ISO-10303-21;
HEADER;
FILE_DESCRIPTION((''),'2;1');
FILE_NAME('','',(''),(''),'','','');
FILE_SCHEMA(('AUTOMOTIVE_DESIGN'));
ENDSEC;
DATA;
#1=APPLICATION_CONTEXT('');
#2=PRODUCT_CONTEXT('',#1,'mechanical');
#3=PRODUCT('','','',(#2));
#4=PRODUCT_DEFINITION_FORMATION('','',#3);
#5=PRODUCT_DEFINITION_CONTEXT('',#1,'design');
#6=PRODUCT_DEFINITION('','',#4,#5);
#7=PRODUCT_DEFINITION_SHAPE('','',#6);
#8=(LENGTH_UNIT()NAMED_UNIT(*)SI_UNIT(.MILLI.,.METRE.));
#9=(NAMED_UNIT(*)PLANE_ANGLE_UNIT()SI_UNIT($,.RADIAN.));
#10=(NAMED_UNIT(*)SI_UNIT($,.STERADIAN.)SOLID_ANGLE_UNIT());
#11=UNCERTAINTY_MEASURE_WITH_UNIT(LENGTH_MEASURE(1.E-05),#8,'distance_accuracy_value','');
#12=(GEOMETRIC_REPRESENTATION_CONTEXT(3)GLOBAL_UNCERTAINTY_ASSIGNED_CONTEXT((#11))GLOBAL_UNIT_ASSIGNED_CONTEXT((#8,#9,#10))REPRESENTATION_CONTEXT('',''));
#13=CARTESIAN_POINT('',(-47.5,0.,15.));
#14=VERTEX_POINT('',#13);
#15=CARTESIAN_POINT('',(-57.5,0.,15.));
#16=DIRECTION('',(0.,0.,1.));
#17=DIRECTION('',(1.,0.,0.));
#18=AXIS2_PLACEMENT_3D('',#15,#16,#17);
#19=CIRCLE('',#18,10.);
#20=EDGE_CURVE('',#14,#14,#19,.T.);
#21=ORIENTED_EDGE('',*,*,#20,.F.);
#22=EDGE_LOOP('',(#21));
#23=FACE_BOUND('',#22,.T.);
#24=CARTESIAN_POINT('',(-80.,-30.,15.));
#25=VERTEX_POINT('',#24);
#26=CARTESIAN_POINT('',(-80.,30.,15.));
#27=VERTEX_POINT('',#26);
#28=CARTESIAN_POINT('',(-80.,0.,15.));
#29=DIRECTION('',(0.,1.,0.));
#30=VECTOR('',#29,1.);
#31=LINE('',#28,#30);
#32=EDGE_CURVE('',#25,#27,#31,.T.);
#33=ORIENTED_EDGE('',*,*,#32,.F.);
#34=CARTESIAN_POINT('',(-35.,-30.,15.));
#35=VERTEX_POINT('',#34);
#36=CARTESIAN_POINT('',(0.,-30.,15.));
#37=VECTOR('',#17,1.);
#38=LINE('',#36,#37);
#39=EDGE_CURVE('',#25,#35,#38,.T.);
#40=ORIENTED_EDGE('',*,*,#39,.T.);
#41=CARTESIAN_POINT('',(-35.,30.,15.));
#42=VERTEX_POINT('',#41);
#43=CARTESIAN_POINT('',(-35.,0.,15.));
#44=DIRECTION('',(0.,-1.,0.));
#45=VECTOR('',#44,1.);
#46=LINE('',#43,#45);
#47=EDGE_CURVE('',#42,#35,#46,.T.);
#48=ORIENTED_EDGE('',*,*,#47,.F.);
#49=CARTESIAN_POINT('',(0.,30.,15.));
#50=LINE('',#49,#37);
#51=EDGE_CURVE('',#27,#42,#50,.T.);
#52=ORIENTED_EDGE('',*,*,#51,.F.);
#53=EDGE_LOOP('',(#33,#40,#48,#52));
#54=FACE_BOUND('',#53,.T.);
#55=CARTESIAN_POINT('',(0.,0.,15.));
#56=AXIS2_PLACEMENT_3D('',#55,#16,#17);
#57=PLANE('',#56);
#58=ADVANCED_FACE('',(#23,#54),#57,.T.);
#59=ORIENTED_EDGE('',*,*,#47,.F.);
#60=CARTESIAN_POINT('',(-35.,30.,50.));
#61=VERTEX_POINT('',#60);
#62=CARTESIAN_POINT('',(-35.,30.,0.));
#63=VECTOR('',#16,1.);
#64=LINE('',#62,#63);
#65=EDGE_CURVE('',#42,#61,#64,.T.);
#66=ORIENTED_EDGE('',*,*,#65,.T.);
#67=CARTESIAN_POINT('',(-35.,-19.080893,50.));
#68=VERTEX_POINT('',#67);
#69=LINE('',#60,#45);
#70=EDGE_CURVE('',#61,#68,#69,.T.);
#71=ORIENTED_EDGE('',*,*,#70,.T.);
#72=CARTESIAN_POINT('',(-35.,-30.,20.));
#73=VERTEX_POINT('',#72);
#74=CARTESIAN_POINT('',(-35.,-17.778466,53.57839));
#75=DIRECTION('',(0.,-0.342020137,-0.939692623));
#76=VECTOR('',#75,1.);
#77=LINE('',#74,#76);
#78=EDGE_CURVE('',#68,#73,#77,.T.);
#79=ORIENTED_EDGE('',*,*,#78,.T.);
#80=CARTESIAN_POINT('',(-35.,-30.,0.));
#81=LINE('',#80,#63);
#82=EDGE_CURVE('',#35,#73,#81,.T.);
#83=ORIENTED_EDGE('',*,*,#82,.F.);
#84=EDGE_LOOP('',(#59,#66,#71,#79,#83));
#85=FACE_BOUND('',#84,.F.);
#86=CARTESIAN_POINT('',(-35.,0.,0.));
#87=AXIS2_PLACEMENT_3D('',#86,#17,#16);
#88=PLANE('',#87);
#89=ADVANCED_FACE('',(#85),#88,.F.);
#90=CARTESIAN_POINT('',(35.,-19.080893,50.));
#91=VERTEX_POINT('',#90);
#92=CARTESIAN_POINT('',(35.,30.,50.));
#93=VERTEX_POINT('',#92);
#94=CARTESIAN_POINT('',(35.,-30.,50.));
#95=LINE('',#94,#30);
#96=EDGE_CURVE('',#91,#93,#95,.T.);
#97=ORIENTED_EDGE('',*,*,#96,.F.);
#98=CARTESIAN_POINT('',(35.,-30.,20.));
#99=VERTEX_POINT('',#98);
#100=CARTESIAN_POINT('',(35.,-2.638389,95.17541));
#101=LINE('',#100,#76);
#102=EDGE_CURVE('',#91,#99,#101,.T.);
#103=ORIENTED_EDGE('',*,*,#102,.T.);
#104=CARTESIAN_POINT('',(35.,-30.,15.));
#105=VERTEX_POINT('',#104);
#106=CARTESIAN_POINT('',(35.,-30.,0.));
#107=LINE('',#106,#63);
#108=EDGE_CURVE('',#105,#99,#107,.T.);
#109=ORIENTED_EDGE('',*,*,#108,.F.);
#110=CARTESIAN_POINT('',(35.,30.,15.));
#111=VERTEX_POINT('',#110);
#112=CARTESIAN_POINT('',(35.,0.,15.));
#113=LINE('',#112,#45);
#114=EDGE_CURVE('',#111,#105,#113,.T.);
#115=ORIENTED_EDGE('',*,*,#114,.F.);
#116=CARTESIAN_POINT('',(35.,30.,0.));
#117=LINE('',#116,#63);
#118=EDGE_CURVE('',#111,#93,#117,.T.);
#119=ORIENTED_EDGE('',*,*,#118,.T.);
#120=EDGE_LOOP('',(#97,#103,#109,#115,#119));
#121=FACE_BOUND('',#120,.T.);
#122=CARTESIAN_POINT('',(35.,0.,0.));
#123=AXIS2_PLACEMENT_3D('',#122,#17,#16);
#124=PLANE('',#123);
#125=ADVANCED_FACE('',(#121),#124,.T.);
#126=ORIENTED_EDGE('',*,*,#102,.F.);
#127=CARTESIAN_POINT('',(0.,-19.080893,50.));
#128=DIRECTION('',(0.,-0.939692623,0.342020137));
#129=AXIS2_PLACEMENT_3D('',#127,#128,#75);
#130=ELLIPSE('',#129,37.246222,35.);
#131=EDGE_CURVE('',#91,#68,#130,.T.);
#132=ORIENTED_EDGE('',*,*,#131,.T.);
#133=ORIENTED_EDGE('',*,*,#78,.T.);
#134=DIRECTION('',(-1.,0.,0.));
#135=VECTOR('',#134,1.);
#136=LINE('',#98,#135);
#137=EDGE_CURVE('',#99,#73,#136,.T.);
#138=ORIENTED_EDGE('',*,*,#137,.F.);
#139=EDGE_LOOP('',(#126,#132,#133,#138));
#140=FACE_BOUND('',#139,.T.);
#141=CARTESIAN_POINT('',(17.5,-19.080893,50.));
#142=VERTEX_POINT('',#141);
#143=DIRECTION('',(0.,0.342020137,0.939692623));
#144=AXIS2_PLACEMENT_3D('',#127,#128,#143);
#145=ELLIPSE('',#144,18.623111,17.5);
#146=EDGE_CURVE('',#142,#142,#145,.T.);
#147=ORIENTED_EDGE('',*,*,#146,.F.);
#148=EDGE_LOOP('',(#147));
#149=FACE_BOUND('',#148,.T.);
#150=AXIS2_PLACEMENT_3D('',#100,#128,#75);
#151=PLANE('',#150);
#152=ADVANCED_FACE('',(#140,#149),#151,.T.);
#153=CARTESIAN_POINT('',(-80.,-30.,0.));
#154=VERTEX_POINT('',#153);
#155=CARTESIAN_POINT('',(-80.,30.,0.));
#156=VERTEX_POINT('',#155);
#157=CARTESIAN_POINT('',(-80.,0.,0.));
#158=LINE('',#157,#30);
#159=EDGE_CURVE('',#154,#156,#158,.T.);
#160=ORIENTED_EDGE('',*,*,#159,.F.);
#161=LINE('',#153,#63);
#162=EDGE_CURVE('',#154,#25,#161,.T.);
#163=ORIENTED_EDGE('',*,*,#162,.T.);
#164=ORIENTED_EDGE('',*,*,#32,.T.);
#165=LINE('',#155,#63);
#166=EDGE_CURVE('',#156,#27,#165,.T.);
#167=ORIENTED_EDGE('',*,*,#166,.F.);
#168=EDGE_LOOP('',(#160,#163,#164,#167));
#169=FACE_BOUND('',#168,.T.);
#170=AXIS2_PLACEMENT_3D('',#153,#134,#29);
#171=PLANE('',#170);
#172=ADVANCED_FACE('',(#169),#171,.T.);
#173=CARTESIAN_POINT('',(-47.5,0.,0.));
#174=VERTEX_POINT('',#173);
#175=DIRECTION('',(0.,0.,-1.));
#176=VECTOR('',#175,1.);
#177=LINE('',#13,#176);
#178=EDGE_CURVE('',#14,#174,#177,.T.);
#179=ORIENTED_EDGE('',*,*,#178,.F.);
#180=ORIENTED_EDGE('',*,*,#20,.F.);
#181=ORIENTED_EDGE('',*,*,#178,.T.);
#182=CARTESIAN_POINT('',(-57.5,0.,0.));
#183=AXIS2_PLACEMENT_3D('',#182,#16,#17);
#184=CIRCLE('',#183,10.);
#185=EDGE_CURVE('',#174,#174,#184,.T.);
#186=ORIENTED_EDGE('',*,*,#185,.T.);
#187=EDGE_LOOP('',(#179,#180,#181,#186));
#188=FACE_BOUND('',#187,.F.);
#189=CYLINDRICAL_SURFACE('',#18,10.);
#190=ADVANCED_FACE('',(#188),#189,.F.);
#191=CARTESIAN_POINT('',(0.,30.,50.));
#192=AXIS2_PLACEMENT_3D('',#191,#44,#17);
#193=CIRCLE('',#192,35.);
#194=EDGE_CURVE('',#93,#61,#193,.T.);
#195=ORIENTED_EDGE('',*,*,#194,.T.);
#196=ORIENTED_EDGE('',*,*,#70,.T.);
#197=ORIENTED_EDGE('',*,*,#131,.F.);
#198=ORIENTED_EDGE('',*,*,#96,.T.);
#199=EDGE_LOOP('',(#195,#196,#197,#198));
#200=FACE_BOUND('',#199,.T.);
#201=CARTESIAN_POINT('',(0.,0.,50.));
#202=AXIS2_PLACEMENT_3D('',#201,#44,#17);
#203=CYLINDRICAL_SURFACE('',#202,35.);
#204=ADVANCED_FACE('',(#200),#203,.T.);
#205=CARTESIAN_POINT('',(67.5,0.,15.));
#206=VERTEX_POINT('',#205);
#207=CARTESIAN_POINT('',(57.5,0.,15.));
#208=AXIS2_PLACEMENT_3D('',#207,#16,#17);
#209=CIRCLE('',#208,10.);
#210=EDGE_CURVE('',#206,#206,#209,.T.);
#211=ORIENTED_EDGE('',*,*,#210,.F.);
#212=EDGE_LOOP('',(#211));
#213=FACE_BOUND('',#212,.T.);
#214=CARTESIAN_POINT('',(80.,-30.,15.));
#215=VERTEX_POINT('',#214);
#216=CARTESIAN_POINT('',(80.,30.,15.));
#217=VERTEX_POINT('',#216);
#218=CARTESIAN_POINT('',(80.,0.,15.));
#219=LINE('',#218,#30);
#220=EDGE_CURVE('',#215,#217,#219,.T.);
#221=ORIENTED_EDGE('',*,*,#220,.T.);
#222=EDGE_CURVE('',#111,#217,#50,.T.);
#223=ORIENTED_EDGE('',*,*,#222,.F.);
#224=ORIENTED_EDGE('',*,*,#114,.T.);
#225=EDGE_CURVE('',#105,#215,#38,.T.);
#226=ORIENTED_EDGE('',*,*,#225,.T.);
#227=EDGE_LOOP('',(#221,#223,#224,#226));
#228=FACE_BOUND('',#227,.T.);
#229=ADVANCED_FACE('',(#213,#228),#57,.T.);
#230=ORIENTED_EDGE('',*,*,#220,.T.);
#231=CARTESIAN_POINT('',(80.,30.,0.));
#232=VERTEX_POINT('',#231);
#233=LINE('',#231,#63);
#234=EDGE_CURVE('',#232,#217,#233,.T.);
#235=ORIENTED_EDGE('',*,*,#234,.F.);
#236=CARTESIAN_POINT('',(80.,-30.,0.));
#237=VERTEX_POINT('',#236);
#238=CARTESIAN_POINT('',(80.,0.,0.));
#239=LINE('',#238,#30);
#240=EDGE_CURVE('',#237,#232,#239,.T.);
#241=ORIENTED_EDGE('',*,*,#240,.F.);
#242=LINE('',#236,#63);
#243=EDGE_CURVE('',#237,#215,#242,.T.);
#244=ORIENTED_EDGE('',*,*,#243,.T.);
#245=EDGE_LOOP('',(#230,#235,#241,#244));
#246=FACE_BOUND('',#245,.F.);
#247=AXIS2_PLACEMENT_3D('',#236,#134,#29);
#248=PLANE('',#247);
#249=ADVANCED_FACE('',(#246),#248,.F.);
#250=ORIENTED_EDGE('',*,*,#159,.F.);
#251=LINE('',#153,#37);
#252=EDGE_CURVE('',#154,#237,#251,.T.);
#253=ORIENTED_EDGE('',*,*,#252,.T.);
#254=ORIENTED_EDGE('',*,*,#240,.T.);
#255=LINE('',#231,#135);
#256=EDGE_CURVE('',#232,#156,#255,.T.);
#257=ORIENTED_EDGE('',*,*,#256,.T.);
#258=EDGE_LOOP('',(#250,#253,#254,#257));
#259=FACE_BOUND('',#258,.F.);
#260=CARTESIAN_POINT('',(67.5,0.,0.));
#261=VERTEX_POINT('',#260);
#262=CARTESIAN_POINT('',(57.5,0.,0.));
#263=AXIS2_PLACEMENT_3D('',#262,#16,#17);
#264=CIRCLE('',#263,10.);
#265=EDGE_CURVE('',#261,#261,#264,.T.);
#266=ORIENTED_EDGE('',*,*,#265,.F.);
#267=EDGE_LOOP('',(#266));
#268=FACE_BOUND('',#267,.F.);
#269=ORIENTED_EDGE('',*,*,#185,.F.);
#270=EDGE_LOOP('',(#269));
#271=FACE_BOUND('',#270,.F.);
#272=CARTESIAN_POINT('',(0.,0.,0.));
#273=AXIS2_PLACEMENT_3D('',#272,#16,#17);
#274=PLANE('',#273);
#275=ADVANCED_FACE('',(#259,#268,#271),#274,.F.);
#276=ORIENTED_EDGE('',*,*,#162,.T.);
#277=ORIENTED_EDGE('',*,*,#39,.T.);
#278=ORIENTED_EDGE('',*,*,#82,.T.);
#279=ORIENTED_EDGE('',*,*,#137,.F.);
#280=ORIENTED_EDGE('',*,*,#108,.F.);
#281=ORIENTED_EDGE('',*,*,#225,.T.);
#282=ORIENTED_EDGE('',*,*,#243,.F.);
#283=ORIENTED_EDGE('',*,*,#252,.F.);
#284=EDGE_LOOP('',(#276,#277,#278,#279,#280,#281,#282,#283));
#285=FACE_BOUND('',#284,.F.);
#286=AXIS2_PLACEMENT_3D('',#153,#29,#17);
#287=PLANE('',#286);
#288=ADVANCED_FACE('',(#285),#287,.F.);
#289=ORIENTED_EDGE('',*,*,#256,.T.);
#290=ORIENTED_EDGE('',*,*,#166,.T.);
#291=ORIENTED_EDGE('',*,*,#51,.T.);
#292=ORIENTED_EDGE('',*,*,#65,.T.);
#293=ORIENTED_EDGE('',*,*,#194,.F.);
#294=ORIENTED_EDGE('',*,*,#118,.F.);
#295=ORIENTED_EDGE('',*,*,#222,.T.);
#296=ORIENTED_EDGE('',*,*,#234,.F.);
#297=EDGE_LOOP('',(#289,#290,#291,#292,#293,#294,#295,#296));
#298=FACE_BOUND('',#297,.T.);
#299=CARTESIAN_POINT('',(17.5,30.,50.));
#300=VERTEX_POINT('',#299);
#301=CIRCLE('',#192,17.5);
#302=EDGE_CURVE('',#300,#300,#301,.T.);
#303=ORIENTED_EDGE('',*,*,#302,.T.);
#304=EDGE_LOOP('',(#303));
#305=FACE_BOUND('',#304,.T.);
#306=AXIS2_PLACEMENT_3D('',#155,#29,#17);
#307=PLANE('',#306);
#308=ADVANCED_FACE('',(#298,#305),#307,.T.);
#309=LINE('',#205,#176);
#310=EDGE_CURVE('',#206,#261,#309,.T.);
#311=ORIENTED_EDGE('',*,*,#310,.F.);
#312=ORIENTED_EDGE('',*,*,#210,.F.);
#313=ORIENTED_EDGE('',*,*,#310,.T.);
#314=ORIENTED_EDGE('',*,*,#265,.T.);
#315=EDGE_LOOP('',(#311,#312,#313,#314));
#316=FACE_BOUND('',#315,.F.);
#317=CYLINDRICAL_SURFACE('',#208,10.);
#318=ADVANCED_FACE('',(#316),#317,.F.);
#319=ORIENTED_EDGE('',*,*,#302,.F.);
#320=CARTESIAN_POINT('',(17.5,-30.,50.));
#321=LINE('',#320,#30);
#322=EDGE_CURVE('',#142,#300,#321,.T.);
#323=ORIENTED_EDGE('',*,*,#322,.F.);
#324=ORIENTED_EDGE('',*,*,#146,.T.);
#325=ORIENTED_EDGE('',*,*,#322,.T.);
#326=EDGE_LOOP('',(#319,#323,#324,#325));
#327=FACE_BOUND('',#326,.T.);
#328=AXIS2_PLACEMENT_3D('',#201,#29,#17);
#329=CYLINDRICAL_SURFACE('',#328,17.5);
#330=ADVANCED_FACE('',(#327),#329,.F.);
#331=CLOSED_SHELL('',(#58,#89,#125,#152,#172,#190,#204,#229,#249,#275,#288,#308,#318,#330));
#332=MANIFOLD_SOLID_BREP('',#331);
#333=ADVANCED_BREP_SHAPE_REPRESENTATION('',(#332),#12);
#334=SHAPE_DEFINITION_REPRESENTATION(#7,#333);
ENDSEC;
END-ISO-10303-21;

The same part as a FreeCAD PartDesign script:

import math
import FreeCAD as App
import Part
import Sketcher

V = App.Vector
Q = App.Units.Quantity

doc = App.newDocument("Part")
params = doc.addObject("Spreadsheet::Sheet", "Params")
for row, (alias, value) in enumerate([
    ("sketch1_width", "160 mm"),
    ("sketch1_height", "60 mm"),
    ("pad1_length", "15 mm"),
    ("sketch2_diameter", "20 mm"),
    ("sketch3_diameter", "35 mm"),
    ("sketch3_radius", "35 mm"),
    ("sketch3_height", "50 mm"),
    ("pad2_length", "60 mm"),
    ("sketch4_height", "75 mm"),
    ("sketch4_length", "80 mm"),
], start=1):
    params.set(f"A{row}", alias)
    params.set(f"B{row}", "=" + value)
    params.setAlias(f"B{row}", alias)

body = doc.addObject("PartDesign::Body", "Body")

# Sketch on XY plane
sketch1 = body.newObject("Sketcher::SketchObject", "Sketch")
sketch1.AttachmentSupport = (doc.getObject("XY_Plane"), [""])
sketch1.MapMode = "FlatFace"
sketch1.addGeometry(Part.LineSegment(V(-80, 30, 0), V(-80, -30, 0)), False)
sketch1.addGeometry(Part.LineSegment(V(-80, -30, 0), V(80, -30, 0)), False)
sketch1.addGeometry(Part.LineSegment(V(80, -30, 0), V(80, 30, 0)), False)
sketch1.addGeometry(Part.LineSegment(V(80, 30, 0), V(-80, 30, 0)), False)
sketch1.addConstraint(Sketcher.Constraint("Coincident", 0, 2, 1, 1))
sketch1.addConstraint(Sketcher.Constraint("Coincident", 1, 2, 2, 1))
sketch1.addConstraint(Sketcher.Constraint("Coincident", 2, 2, 3, 1))
sketch1.addConstraint(Sketcher.Constraint("Coincident", 3, 2, 0, 1))
sketch1.addConstraint(Sketcher.Constraint("Vertical", 0))
sketch1.addConstraint(Sketcher.Constraint("Horizontal", 1))
sketch1.addConstraint(Sketcher.Constraint("Vertical", 2))
sketch1.addConstraint(Sketcher.Constraint("Horizontal", 3))
sketch1.addConstraint(Sketcher.Constraint("Symmetric", 0, 2, 2, 2, -1, 1))
sketch1.addConstraint(Sketcher.Constraint("DistanceX", 1, 1, 1, 2, 160.0))
sketch1.addConstraint(Sketcher.Constraint("DistanceY", 0, 2, 0, 1, 60.0))
sketch1.setExpression("Constraints[9]", "Params.sketch1_width")
sketch1.setExpression("Constraints[10]", "Params.sketch1_height")
pad1 = body.newObject("PartDesign::Pad", "Pad")
pad1.Profile = sketch1
pad1.setExpression("Length", "Params.pad1_length")

# Sketch on XY plane
sketch2 = body.newObject("Sketcher::SketchObject", "Sketch001")
sketch2.AttachmentSupport = (doc.getObject("XY_Plane"), [""])
sketch2.MapMode = "FlatFace"
sketch2.AttachmentOffset = App.Placement(V(0, 0, 15), App.Rotation())
sketch2.addGeometry(Part.Circle(V(-58, 0, 0), V(0, 0, 1), 10), False)
sketch2.addGeometry(Part.Circle(V(58, 0, 0), V(0, 0, 1), 10), False)
sketch2.addConstraint(Sketcher.Constraint("Equal", 0, 1))
sketch2.addConstraint(Sketcher.Constraint("Symmetric", 0, 3, 1, 3, -1, 1))
sketch2.addConstraint(Sketcher.Constraint("PointOnObject", 0, 3, -1))
sketch2.addConstraint(Sketcher.Constraint("Diameter", 0, 20.0))
sketch2.addConstraint(Sketcher.Constraint("DistanceX", 0, 3, 1, 3, 115.0))
sketch2.setExpression("Constraints[3]", "Params.sketch2_diameter")
pocket1 = body.newObject("PartDesign::Pocket", "Pocket")
pocket1.Profile = sketch2
pocket1.Type = "ThroughAll"
body2 = doc.addObject("PartDesign::Body", "Body001")

# Sketch on XZ plane
sketch3 = body2.newObject("Sketcher::SketchObject", "Sketch002")
sketch3.AttachmentSupport = (doc.getObject("XZ_Plane001"), [""])
sketch3.MapMode = "FlatFace"
sketch3.addGeometry(Part.ArcOfCircle(Part.Circle(V(0, 50, 0), V(0, 0, 1), 35), math.radians(0), math.radians(180)), False)
sketch3.addGeometry(Part.LineSegment(V(-35, 50, 0), V(-35, 0, 0)), False)
sketch3.addGeometry(Part.LineSegment(V(-35, 0, 0), V(35, 0, 0)), False)
sketch3.addGeometry(Part.LineSegment(V(35, 0, 0), V(35, 50, 0)), False)
sketch3.addGeometry(Part.Circle(V(0, 50, 0), V(0, 0, 1), 18), False)
sketch3.addConstraint(Sketcher.Constraint("Tangent", 0, 2, 1, 1))
sketch3.addConstraint(Sketcher.Constraint("Coincident", 1, 2, 2, 1))
sketch3.addConstraint(Sketcher.Constraint("Coincident", 2, 2, 3, 1))
sketch3.addConstraint(Sketcher.Constraint("Tangent", 3, 2, 0, 1))
sketch3.addConstraint(Sketcher.Constraint("Vertical", 1))
sketch3.addConstraint(Sketcher.Constraint("Horizontal", 2))
sketch3.addConstraint(Sketcher.Constraint("Vertical", 3))
sketch3.addConstraint(Sketcher.Constraint("Coincident", 4, 3, 0, 3))
sketch3.addConstraint(Sketcher.Constraint("Symmetric", 1, 2, 2, 2, -1, 1))
sketch3.addConstraint(Sketcher.Constraint("Diameter", 4, 35.0))
sketch3.addConstraint(Sketcher.Constraint("Radius", 0, 35.0))
sketch3.addConstraint(Sketcher.Constraint("DistanceY", 1, 2, 1, 1, 50.0))
sketch3.setExpression("Constraints[9]", "Params.sketch3_diameter")
sketch3.setExpression("Constraints[10]", "Params.sketch3_radius")
sketch3.setExpression("Constraints[11]", "Params.sketch3_height")
pad2 = body2.newObject("PartDesign::Pad", "Pad001")
pad2.Profile = sketch3
pad2.setExpression("Length", "Params.pad2_length")
pad2.Midplane = True
doc.recompute()

boolean = body2.newObject("PartDesign::Boolean", "Boolean")
boolean.Type = "Fuse"
boolean.addObjects([body])

# Sketch on YZ plane
sketch4 = body2.newObject("Sketcher::SketchObject", "Sketch003")
sketch4.AttachmentSupport = (doc.getObject("YZ_Plane001"), [""])
sketch4.MapMode = "FlatFace"
sketch4.AttachmentOffset = App.Placement(V(0, 0, 35), App.Rotation())
sketch4.addGeometry(Part.LineSegment(V(-30, 95, 0), V(-30, 20, 0)), False)
sketch4.addGeometry(Part.LineSegment(V(-30, 20, 0), V(-3, 95, 0)), False)
sketch4.addGeometry(Part.LineSegment(V(-3, 95, 0), V(-30, 95, 0)), False)
sketch4.addConstraint(Sketcher.Constraint("Coincident", 0, 2, 1, 1))
sketch4.addConstraint(Sketcher.Constraint("Coincident", 1, 2, 2, 1))
sketch4.addConstraint(Sketcher.Constraint("Coincident", 2, 2, 0, 1))
sketch4.addConstraint(Sketcher.Constraint("Vertical", 0))
sketch4.addConstraint(Sketcher.Constraint("DistanceY", 0, 2, 0, 1, 75.0))
sketch4.addConstraint(Sketcher.Constraint("Angle", 1, Q("70 deg")))
sketch4.addConstraint(Sketcher.Constraint("Distance", 1, 80.0))
sketch4.addConstraint(Sketcher.Constraint("DistanceX", 0, 2, -1, 1, 30.0))
sketch4.addConstraint(Sketcher.Constraint("DistanceY", -1, 1, 0, 2, 20.0))
sketch4.setExpression("Constraints[4]", "Params.sketch4_height")
sketch4.setExpression("Constraints[6]", "Params.sketch4_length")
pocket2 = body2.newObject("PartDesign::Pocket", "Pocket001")
pocket2.Profile = sketch4
pocket2.Type = "ThroughAll"

doc.recompute()
